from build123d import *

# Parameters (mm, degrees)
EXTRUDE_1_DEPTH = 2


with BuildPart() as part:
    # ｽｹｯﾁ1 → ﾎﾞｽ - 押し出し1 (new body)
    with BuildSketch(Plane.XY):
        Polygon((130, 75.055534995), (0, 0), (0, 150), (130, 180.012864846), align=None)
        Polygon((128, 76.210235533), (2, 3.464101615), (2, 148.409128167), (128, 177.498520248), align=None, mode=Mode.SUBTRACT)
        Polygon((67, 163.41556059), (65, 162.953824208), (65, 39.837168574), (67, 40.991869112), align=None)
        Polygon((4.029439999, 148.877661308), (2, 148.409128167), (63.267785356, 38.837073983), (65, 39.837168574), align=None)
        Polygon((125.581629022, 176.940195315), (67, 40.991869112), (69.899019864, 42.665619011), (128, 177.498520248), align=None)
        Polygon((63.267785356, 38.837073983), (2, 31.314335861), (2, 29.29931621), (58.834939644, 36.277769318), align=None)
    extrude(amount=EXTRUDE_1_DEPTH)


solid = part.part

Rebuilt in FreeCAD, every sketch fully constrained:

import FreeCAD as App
import Part
import Sketcher
from FreeCAD import Vector
Q = App.Units.Quantity

doc = App.newDocument("Part")
body = doc.addObject("PartDesign::Body", "Body")

# Sketch on XY plane
sketch1 = body.newObject("Sketcher::SketchObject", "Sketch")
sketch1.AttachmentSupport = (doc.getObject("XY_Plane"), [""])
sketch1.MapMode = "FlatFace"
sketch1.addGeometry(Part.LineSegment(Vector(0, 0, 0), Vector(130, 75, 0)), False)
sketch1.addGeometry(Part.LineSegment(Vector(130, 75, 0), Vector(130, 180, 0)), False)
sketch1.addGeometry(Part.LineSegment(Vector(130, 180, 0), Vector(0, 150, 0)), False)
sketch1.addGeometry(Part.LineSegment(Vector(0, 150, 0), Vector(0, 0, 0)), False)
sketch1.addGeometry(Part.LineSegment(Vector(128, 76, 0), Vector(70, 43, 0)), False)
sketch1.addGeometry(Part.LineSegment(Vector(70, 43, 0), Vector(128, 177, 0)), False)
sketch1.addGeometry(Part.LineSegment(Vector(128, 177, 0), Vector(128, 76, 0)), False)
sketch1.addGeometry(Part.LineSegment(Vector(67, 163, 0), Vector(126, 177, 0)), False)
sketch1.addGeometry(Part.LineSegment(Vector(126, 177, 0), Vector(67, 41, 0)), False)
sketch1.addGeometry(Part.LineSegment(Vector(67, 41, 0), Vector(67, 163, 0)), False)
sketch1.addGeometry(Part.LineSegment(Vector(59, 36, 0), Vector(2, 3, 0)), False)
sketch1.addGeometry(Part.LineSegment(Vector(2, 3, 0), Vector(2, 29, 0)), False)
sketch1.addGeometry(Part.LineSegment(Vector(2, 29, 0), Vector(59, 36, 0)), False)
sketch1.addGeometry(Part.LineSegment(Vector(2, 148, 0), Vector(63, 39, 0)), False)
sketch1.addGeometry(Part.LineSegment(Vector(63, 39, 0), Vector(2, 31, 0)), False)
sketch1.addGeometry(Part.LineSegment(Vector(2, 31, 0), Vector(2, 148, 0)), False)
sketch1.addGeometry(Part.LineSegment(Vector(65, 163, 0), Vector(65, 40, 0)), False)
sketch1.addGeometry(Part.LineSegment(Vector(65, 40, 0), Vector(4, 149, 0)), False)
sketch1.addGeometry(Part.LineSegment(Vector(4, 149, 0), Vector(65, 163, 0)), False)
sketch1.addConstraint(Sketcher.Constraint("Coincident", 0, 2, 1, 1))
sketch1.addConstraint(Sketcher.Constraint("Coincident", 1, 2, 2, 1))
sketch1.addConstraint(Sketcher.Constraint("Coincident", 2, 2, 3, 1))
sketch1.addConstraint(Sketcher.Constraint("Coincident", 3, 2, 0, 1))
sketch1.addConstraint(Sketcher.Constraint("Coincident", 4, 2, 5, 1))
sketch1.addConstraint(Sketcher.Constraint("Coincident", 5, 2, 6, 1))
sketch1.addConstraint(Sketcher.Constraint("Coincident", 6, 2, 4, 1))
sketch1.addConstraint(Sketcher.Constraint("Coincident", 7, 2, 8, 1))
sketch1.addConstraint(Sketcher.Constraint("Coincident", 8, 2, 9, 1))
sketch1.addConstraint(Sketcher.Constraint("Coincident", 9, 2, 7, 1))
sketch1.addConstraint(Sketcher.Constraint("Coincident", 10, 2, 11, 1))
sketch1.addConstraint(Sketcher.Constraint("Coincident", 11, 2, 12, 1))
sketch1.addConstraint(Sketcher.Constraint("Coincident", 12, 2, 10, 1))
sketch1.addConstraint(Sketcher.Constraint("Coincident", 13, 2, 14, 1))
sketch1.addConstraint(Sketcher.Constraint("Coincident", 14, 2, 15, 1))
sketch1.addConstraint(Sketcher.Constraint("Coincident", 15, 2, 13, 1))
sketch1.addConstraint(Sketcher.Constraint("Coincident", 16, 2, 17, 1))
sketch1.addConstraint(Sketcher.Constraint("Coincident", 17, 2, 18, 1))
sketch1.addConstraint(Sketcher.Constraint("Coincident", 18, 2, 16, 1))
sketch1.addConstraint(Sketcher.Constraint("Vertical", 1))
sketch1.addConstraint(Sketcher.Constraint("Vertical", 3))
sketch1.addConstraint(Sketcher.Constraint("Vertical", 6))
sketch1.addConstraint(Sketcher.Constraint("Vertical", 9))
sketch1.addConstraint(Sketcher.Constraint("Vertical", 11))
sketch1.addConstraint(Sketcher.Constraint("Vertical", 15))
sketch1.addConstraint(Sketcher.Constraint("Vertical", 16))
sketch1.addConstraint(Sketcher.Constraint("Coincident", 3, 2, -1, 1))
sketch1.addConstraint(Sketcher.Constraint("Parallel", 0, 4))
sketch1.addConstraint(Sketcher.Constraint("Parallel", 2, 7))
sketch1.addConstraint(Sketcher.Constraint("Parallel", 5, 8))
sketch1.addConstraint(Sketcher.Constraint("Parallel", 4, 10))
sketch1.addConstraint(Sketcher.Constraint("Parallel", 12, 14))
sketch1.addConstraint(Sketcher.Constraint("Parallel", 13, 17))
sketch1.addConstraint(Sketcher.Constraint("Parallel", 7, 18))
sketch1.addConstraint(Sketcher.Constraint("Vertical", 11, 2, 14, 2))
sketch1.addConstraint(Sketcher.Constraint("DistanceY", 3, 2, 3, 1, 150.0))
sketch1.addConstraint(Sketcher.Constraint("Angle", 0, Q("30 deg")))
sketch1.addConstraint(Sketcher.Constraint("Angle", 2, Q("-167 deg")))
sketch1.addConstraint(Sketcher.Constraint("Angle", 12, Q("7 deg")))
sketch1.addConstraint(Sketcher.Constraint("DistanceX", -1, 1, 0, 2, 130.0))
sketch1.addConstraint(Sketcher.Constraint("DistanceX", -1, 1, 5, 2, 128.0))
sketch1.addConstraint(Sketcher.Constraint("DistanceX", -1, 1, 8, 2, 67.0))
sketch1.addConstraint(Sketcher.Constraint("DistanceX", -1, 1, 10, 2, 2.0))
sketch1.addConstraint(Sketcher.Constraint("DistanceX", -1, 1, 16, 2, 65.0))
sketch1.addConstraint(Sketcher.Constraint("DistanceY", 9, 1, 9, 2, 122.423691))
sketch1.addConstraint(Sketcher.Constraint("DistanceY", -1, 1, 10, 2, 3.464102))
sketch1.addConstraint(Sketcher.Constraint("DistanceY", 4, 2, 5, 2, 134.832901))
sketch1.addConstraint(Sketcher.Constraint("DistanceY", 0, 2, 6, 2, 1.154701))
sketch1.addConstraint(Sketcher.Constraint("DistanceY", 12, 2, 8, 2, 4.7141))
sketch1.addConstraint(Sketcher.Constraint("DistanceY", 16, 2, 8, 2, 1.154701))
sketch1.addConstraint(Sketcher.Constraint("DistanceY", 17, 2, 9, 2, 14.537899))
sketch1.addConstraint(Sketcher.Constraint("Distance", 8, 148.032951))
sketch1.addConstraint(Sketcher.Constraint("Distance", 12, 57.26176))
sketch1.addConstraint(Sketcher.Constraint("Distance", 13, 125.537949))
sketch1.addConstraint(Sketcher.Constraint("DistanceY", 15, 1, 15, 2, 117.094792))
sketch1.addConstraint(Sketcher.Constraint("DistanceY", -1, 1, 15, 2, 148.409128))
pad1 = body.newObject("PartDesign::Pad", "Pad")
pad1.Profile = sketch1
pad1.Length = 2

doc.recompute()
